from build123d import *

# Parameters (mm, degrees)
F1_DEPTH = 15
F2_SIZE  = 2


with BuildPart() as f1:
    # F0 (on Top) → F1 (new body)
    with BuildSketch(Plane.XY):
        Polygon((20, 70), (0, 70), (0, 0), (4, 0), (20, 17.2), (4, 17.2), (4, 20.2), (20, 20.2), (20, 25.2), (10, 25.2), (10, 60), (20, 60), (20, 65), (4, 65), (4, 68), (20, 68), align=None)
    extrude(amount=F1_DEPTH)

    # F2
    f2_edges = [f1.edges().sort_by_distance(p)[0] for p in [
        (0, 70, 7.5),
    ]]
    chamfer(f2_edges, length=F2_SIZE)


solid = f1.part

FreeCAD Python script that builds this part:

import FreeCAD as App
import Part
import Sketcher

V = App.Vector
Q = App.Units.Quantity


def edges_at(feature, points):
    """Names of the edges that pass closest to the given points."""
    edges = feature.Shape.Edges
    near = lambda p: min(range(len(edges)), key=lambda i: edges[i].distToShape(Part.Vertex(*p))[0])
    return sorted({f"Edge{near(p) + 1}" for p in points})


def add_polygon(sketch, points):
    """Adds a closed chain of lines whose ends are joined by coincident constraints."""
    first, n = sketch.GeometryCount, len(points)
    for a, b in zip(points, points[1:] + points[:1]):
        sketch.addGeometry(Part.LineSegment(App.Vector(*a, 0), App.Vector(*b, 0)), False)
    for i in range(n):
        sketch.addConstraint(Sketcher.Constraint("Coincident", first + i, 2, first + (i + 1) % n, 1))

doc = App.newDocument("Part")
params = doc.addObject("Spreadsheet::Sheet", "Params")
for row, (alias, value) in enumerate([
    ("sketch1_width", "20 mm"),
    ("sketch1_width2", "4 mm"),
    ("sketch1_width3", "10 mm"),
    ("sketch1_height", "70 mm"),
    ("sketch1_height2", "3 mm"),
    ("pad1_length", "15 mm"),
    ("chamfer_size", "2 mm"),
], start=1):
    params.set(f"A{row}", alias)
    params.set(f"B{row}", "=" + value)
    params.setAlias(f"B{row}", alias)

body = doc.addObject("PartDesign::Body", "Body")

# Sketch on XY plane
sketch1 = doc.addObject("Sketcher::SketchObject", "Sketch")
body.addObject(sketch1)
sketch1.AttachmentSupport = (doc.XY_Plane, [""])
sketch1.MapMode = "FlatFace"
add_polygon(sketch1, [(20, 70), (0, 70), (0, 0), (4, 0), (20, 17.2), (4, 17.2), (4, 20.2), (20, 20.2), (20, 25.2), (10, 25.2), (10, 60), (20, 60), (20, 65), (4, 65), (4, 68), (20, 68)])  # lines 0-15
sketch1.addConstraint([
    Sketcher.Constraint("Horizontal", 0),
    Sketcher.Constraint("Vertical", 1),
    Sketcher.Constraint("Horizontal", 2),
    Sketcher.Constraint("Horizontal", 4),
    Sketcher.Constraint("Vertical", 5),
    Sketcher.Constraint("Horizontal", 6),
    Sketcher.Constraint("Vertical", 7),
    Sketcher.Constraint("Horizontal", 8),
    Sketcher.Constraint("Vertical", 9),
    Sketcher.Constraint("Horizontal", 10),
    Sketcher.Constraint("Vertical", 11),
    Sketcher.Constraint("Horizontal", 12),
    Sketcher.Constraint("Vertical", 13),
    Sketcher.Constraint("Horizontal", 14),
    Sketcher.Constraint("Vertical", 15),
    Sketcher.Constraint("Coincident", 1, 2, -1, 1),
    Sketcher.Constraint("Vertical", 2, 2, 4, 2),
    Sketcher.Constraint("Vertical", 3, 2, 6, 2),
    Sketcher.Constraint("Vertical", 7, 2, 10, 2),
    Sketcher.Constraint("Vertical", 5, 2, 12, 2),
    Sketcher.Constraint("Vertical", 11, 2, 14, 2),
    Sketcher.Constraint("Equal", 7, 11),
    Sketcher.Constraint("Equal", 5, 13),
    Sketcher.Constraint("DistanceX", 0, 2, 0, 1, Q("20 mm")),
    Sketcher.Constraint("DistanceX", 2, 1, 2, 2, Q("4 mm")),
    Sketcher.Constraint("DistanceX", 8, 2, 8, 1, Q("10 mm")),
    Sketcher.Constraint("DistanceY", 1, 2, 1, 1, Q("70 mm")),
    Sketcher.Constraint("DistanceY", 5, 1, 5, 2, Q("3 mm")),
    Sketcher.Constraint("DistanceY", 7, 1, 7, 2, Q("5 mm")),
    Sketcher.Constraint("DistanceY", 15, 1, 15, 2, Q("2 mm")),
    Sketcher.Constraint("DistanceY", 9, 1, 9, 2, Q("34.8 mm")),
])
sketch1.setExpression("Constraints[39]", "Params.sketch1_width")
sketch1.setExpression("Constraints[40]", "Params.sketch1_width2")
sketch1.setExpression("Constraints[41]", "Params.sketch1_width3")
sketch1.setExpression("Constraints[42]", "Params.sketch1_height")
sketch1.setExpression("Constraints[43]", "Params.sketch1_height2")
pad1 = doc.addObject("PartDesign::Pad", "Pad")
body.addObject(pad1)
pad1.Profile = sketch1
pad1.setExpression("Length", "Params.pad1_length")
doc.recompute()

chamfer = doc.addObject("PartDesign::Chamfer", "Chamfer")
body.addObject(chamfer)
chamfer.Base = (pad1, edges_at(pad1, [(0, 70, 7.5)]))
chamfer.setExpression("Size", "Params.chamfer_size")

doc.recompute()
